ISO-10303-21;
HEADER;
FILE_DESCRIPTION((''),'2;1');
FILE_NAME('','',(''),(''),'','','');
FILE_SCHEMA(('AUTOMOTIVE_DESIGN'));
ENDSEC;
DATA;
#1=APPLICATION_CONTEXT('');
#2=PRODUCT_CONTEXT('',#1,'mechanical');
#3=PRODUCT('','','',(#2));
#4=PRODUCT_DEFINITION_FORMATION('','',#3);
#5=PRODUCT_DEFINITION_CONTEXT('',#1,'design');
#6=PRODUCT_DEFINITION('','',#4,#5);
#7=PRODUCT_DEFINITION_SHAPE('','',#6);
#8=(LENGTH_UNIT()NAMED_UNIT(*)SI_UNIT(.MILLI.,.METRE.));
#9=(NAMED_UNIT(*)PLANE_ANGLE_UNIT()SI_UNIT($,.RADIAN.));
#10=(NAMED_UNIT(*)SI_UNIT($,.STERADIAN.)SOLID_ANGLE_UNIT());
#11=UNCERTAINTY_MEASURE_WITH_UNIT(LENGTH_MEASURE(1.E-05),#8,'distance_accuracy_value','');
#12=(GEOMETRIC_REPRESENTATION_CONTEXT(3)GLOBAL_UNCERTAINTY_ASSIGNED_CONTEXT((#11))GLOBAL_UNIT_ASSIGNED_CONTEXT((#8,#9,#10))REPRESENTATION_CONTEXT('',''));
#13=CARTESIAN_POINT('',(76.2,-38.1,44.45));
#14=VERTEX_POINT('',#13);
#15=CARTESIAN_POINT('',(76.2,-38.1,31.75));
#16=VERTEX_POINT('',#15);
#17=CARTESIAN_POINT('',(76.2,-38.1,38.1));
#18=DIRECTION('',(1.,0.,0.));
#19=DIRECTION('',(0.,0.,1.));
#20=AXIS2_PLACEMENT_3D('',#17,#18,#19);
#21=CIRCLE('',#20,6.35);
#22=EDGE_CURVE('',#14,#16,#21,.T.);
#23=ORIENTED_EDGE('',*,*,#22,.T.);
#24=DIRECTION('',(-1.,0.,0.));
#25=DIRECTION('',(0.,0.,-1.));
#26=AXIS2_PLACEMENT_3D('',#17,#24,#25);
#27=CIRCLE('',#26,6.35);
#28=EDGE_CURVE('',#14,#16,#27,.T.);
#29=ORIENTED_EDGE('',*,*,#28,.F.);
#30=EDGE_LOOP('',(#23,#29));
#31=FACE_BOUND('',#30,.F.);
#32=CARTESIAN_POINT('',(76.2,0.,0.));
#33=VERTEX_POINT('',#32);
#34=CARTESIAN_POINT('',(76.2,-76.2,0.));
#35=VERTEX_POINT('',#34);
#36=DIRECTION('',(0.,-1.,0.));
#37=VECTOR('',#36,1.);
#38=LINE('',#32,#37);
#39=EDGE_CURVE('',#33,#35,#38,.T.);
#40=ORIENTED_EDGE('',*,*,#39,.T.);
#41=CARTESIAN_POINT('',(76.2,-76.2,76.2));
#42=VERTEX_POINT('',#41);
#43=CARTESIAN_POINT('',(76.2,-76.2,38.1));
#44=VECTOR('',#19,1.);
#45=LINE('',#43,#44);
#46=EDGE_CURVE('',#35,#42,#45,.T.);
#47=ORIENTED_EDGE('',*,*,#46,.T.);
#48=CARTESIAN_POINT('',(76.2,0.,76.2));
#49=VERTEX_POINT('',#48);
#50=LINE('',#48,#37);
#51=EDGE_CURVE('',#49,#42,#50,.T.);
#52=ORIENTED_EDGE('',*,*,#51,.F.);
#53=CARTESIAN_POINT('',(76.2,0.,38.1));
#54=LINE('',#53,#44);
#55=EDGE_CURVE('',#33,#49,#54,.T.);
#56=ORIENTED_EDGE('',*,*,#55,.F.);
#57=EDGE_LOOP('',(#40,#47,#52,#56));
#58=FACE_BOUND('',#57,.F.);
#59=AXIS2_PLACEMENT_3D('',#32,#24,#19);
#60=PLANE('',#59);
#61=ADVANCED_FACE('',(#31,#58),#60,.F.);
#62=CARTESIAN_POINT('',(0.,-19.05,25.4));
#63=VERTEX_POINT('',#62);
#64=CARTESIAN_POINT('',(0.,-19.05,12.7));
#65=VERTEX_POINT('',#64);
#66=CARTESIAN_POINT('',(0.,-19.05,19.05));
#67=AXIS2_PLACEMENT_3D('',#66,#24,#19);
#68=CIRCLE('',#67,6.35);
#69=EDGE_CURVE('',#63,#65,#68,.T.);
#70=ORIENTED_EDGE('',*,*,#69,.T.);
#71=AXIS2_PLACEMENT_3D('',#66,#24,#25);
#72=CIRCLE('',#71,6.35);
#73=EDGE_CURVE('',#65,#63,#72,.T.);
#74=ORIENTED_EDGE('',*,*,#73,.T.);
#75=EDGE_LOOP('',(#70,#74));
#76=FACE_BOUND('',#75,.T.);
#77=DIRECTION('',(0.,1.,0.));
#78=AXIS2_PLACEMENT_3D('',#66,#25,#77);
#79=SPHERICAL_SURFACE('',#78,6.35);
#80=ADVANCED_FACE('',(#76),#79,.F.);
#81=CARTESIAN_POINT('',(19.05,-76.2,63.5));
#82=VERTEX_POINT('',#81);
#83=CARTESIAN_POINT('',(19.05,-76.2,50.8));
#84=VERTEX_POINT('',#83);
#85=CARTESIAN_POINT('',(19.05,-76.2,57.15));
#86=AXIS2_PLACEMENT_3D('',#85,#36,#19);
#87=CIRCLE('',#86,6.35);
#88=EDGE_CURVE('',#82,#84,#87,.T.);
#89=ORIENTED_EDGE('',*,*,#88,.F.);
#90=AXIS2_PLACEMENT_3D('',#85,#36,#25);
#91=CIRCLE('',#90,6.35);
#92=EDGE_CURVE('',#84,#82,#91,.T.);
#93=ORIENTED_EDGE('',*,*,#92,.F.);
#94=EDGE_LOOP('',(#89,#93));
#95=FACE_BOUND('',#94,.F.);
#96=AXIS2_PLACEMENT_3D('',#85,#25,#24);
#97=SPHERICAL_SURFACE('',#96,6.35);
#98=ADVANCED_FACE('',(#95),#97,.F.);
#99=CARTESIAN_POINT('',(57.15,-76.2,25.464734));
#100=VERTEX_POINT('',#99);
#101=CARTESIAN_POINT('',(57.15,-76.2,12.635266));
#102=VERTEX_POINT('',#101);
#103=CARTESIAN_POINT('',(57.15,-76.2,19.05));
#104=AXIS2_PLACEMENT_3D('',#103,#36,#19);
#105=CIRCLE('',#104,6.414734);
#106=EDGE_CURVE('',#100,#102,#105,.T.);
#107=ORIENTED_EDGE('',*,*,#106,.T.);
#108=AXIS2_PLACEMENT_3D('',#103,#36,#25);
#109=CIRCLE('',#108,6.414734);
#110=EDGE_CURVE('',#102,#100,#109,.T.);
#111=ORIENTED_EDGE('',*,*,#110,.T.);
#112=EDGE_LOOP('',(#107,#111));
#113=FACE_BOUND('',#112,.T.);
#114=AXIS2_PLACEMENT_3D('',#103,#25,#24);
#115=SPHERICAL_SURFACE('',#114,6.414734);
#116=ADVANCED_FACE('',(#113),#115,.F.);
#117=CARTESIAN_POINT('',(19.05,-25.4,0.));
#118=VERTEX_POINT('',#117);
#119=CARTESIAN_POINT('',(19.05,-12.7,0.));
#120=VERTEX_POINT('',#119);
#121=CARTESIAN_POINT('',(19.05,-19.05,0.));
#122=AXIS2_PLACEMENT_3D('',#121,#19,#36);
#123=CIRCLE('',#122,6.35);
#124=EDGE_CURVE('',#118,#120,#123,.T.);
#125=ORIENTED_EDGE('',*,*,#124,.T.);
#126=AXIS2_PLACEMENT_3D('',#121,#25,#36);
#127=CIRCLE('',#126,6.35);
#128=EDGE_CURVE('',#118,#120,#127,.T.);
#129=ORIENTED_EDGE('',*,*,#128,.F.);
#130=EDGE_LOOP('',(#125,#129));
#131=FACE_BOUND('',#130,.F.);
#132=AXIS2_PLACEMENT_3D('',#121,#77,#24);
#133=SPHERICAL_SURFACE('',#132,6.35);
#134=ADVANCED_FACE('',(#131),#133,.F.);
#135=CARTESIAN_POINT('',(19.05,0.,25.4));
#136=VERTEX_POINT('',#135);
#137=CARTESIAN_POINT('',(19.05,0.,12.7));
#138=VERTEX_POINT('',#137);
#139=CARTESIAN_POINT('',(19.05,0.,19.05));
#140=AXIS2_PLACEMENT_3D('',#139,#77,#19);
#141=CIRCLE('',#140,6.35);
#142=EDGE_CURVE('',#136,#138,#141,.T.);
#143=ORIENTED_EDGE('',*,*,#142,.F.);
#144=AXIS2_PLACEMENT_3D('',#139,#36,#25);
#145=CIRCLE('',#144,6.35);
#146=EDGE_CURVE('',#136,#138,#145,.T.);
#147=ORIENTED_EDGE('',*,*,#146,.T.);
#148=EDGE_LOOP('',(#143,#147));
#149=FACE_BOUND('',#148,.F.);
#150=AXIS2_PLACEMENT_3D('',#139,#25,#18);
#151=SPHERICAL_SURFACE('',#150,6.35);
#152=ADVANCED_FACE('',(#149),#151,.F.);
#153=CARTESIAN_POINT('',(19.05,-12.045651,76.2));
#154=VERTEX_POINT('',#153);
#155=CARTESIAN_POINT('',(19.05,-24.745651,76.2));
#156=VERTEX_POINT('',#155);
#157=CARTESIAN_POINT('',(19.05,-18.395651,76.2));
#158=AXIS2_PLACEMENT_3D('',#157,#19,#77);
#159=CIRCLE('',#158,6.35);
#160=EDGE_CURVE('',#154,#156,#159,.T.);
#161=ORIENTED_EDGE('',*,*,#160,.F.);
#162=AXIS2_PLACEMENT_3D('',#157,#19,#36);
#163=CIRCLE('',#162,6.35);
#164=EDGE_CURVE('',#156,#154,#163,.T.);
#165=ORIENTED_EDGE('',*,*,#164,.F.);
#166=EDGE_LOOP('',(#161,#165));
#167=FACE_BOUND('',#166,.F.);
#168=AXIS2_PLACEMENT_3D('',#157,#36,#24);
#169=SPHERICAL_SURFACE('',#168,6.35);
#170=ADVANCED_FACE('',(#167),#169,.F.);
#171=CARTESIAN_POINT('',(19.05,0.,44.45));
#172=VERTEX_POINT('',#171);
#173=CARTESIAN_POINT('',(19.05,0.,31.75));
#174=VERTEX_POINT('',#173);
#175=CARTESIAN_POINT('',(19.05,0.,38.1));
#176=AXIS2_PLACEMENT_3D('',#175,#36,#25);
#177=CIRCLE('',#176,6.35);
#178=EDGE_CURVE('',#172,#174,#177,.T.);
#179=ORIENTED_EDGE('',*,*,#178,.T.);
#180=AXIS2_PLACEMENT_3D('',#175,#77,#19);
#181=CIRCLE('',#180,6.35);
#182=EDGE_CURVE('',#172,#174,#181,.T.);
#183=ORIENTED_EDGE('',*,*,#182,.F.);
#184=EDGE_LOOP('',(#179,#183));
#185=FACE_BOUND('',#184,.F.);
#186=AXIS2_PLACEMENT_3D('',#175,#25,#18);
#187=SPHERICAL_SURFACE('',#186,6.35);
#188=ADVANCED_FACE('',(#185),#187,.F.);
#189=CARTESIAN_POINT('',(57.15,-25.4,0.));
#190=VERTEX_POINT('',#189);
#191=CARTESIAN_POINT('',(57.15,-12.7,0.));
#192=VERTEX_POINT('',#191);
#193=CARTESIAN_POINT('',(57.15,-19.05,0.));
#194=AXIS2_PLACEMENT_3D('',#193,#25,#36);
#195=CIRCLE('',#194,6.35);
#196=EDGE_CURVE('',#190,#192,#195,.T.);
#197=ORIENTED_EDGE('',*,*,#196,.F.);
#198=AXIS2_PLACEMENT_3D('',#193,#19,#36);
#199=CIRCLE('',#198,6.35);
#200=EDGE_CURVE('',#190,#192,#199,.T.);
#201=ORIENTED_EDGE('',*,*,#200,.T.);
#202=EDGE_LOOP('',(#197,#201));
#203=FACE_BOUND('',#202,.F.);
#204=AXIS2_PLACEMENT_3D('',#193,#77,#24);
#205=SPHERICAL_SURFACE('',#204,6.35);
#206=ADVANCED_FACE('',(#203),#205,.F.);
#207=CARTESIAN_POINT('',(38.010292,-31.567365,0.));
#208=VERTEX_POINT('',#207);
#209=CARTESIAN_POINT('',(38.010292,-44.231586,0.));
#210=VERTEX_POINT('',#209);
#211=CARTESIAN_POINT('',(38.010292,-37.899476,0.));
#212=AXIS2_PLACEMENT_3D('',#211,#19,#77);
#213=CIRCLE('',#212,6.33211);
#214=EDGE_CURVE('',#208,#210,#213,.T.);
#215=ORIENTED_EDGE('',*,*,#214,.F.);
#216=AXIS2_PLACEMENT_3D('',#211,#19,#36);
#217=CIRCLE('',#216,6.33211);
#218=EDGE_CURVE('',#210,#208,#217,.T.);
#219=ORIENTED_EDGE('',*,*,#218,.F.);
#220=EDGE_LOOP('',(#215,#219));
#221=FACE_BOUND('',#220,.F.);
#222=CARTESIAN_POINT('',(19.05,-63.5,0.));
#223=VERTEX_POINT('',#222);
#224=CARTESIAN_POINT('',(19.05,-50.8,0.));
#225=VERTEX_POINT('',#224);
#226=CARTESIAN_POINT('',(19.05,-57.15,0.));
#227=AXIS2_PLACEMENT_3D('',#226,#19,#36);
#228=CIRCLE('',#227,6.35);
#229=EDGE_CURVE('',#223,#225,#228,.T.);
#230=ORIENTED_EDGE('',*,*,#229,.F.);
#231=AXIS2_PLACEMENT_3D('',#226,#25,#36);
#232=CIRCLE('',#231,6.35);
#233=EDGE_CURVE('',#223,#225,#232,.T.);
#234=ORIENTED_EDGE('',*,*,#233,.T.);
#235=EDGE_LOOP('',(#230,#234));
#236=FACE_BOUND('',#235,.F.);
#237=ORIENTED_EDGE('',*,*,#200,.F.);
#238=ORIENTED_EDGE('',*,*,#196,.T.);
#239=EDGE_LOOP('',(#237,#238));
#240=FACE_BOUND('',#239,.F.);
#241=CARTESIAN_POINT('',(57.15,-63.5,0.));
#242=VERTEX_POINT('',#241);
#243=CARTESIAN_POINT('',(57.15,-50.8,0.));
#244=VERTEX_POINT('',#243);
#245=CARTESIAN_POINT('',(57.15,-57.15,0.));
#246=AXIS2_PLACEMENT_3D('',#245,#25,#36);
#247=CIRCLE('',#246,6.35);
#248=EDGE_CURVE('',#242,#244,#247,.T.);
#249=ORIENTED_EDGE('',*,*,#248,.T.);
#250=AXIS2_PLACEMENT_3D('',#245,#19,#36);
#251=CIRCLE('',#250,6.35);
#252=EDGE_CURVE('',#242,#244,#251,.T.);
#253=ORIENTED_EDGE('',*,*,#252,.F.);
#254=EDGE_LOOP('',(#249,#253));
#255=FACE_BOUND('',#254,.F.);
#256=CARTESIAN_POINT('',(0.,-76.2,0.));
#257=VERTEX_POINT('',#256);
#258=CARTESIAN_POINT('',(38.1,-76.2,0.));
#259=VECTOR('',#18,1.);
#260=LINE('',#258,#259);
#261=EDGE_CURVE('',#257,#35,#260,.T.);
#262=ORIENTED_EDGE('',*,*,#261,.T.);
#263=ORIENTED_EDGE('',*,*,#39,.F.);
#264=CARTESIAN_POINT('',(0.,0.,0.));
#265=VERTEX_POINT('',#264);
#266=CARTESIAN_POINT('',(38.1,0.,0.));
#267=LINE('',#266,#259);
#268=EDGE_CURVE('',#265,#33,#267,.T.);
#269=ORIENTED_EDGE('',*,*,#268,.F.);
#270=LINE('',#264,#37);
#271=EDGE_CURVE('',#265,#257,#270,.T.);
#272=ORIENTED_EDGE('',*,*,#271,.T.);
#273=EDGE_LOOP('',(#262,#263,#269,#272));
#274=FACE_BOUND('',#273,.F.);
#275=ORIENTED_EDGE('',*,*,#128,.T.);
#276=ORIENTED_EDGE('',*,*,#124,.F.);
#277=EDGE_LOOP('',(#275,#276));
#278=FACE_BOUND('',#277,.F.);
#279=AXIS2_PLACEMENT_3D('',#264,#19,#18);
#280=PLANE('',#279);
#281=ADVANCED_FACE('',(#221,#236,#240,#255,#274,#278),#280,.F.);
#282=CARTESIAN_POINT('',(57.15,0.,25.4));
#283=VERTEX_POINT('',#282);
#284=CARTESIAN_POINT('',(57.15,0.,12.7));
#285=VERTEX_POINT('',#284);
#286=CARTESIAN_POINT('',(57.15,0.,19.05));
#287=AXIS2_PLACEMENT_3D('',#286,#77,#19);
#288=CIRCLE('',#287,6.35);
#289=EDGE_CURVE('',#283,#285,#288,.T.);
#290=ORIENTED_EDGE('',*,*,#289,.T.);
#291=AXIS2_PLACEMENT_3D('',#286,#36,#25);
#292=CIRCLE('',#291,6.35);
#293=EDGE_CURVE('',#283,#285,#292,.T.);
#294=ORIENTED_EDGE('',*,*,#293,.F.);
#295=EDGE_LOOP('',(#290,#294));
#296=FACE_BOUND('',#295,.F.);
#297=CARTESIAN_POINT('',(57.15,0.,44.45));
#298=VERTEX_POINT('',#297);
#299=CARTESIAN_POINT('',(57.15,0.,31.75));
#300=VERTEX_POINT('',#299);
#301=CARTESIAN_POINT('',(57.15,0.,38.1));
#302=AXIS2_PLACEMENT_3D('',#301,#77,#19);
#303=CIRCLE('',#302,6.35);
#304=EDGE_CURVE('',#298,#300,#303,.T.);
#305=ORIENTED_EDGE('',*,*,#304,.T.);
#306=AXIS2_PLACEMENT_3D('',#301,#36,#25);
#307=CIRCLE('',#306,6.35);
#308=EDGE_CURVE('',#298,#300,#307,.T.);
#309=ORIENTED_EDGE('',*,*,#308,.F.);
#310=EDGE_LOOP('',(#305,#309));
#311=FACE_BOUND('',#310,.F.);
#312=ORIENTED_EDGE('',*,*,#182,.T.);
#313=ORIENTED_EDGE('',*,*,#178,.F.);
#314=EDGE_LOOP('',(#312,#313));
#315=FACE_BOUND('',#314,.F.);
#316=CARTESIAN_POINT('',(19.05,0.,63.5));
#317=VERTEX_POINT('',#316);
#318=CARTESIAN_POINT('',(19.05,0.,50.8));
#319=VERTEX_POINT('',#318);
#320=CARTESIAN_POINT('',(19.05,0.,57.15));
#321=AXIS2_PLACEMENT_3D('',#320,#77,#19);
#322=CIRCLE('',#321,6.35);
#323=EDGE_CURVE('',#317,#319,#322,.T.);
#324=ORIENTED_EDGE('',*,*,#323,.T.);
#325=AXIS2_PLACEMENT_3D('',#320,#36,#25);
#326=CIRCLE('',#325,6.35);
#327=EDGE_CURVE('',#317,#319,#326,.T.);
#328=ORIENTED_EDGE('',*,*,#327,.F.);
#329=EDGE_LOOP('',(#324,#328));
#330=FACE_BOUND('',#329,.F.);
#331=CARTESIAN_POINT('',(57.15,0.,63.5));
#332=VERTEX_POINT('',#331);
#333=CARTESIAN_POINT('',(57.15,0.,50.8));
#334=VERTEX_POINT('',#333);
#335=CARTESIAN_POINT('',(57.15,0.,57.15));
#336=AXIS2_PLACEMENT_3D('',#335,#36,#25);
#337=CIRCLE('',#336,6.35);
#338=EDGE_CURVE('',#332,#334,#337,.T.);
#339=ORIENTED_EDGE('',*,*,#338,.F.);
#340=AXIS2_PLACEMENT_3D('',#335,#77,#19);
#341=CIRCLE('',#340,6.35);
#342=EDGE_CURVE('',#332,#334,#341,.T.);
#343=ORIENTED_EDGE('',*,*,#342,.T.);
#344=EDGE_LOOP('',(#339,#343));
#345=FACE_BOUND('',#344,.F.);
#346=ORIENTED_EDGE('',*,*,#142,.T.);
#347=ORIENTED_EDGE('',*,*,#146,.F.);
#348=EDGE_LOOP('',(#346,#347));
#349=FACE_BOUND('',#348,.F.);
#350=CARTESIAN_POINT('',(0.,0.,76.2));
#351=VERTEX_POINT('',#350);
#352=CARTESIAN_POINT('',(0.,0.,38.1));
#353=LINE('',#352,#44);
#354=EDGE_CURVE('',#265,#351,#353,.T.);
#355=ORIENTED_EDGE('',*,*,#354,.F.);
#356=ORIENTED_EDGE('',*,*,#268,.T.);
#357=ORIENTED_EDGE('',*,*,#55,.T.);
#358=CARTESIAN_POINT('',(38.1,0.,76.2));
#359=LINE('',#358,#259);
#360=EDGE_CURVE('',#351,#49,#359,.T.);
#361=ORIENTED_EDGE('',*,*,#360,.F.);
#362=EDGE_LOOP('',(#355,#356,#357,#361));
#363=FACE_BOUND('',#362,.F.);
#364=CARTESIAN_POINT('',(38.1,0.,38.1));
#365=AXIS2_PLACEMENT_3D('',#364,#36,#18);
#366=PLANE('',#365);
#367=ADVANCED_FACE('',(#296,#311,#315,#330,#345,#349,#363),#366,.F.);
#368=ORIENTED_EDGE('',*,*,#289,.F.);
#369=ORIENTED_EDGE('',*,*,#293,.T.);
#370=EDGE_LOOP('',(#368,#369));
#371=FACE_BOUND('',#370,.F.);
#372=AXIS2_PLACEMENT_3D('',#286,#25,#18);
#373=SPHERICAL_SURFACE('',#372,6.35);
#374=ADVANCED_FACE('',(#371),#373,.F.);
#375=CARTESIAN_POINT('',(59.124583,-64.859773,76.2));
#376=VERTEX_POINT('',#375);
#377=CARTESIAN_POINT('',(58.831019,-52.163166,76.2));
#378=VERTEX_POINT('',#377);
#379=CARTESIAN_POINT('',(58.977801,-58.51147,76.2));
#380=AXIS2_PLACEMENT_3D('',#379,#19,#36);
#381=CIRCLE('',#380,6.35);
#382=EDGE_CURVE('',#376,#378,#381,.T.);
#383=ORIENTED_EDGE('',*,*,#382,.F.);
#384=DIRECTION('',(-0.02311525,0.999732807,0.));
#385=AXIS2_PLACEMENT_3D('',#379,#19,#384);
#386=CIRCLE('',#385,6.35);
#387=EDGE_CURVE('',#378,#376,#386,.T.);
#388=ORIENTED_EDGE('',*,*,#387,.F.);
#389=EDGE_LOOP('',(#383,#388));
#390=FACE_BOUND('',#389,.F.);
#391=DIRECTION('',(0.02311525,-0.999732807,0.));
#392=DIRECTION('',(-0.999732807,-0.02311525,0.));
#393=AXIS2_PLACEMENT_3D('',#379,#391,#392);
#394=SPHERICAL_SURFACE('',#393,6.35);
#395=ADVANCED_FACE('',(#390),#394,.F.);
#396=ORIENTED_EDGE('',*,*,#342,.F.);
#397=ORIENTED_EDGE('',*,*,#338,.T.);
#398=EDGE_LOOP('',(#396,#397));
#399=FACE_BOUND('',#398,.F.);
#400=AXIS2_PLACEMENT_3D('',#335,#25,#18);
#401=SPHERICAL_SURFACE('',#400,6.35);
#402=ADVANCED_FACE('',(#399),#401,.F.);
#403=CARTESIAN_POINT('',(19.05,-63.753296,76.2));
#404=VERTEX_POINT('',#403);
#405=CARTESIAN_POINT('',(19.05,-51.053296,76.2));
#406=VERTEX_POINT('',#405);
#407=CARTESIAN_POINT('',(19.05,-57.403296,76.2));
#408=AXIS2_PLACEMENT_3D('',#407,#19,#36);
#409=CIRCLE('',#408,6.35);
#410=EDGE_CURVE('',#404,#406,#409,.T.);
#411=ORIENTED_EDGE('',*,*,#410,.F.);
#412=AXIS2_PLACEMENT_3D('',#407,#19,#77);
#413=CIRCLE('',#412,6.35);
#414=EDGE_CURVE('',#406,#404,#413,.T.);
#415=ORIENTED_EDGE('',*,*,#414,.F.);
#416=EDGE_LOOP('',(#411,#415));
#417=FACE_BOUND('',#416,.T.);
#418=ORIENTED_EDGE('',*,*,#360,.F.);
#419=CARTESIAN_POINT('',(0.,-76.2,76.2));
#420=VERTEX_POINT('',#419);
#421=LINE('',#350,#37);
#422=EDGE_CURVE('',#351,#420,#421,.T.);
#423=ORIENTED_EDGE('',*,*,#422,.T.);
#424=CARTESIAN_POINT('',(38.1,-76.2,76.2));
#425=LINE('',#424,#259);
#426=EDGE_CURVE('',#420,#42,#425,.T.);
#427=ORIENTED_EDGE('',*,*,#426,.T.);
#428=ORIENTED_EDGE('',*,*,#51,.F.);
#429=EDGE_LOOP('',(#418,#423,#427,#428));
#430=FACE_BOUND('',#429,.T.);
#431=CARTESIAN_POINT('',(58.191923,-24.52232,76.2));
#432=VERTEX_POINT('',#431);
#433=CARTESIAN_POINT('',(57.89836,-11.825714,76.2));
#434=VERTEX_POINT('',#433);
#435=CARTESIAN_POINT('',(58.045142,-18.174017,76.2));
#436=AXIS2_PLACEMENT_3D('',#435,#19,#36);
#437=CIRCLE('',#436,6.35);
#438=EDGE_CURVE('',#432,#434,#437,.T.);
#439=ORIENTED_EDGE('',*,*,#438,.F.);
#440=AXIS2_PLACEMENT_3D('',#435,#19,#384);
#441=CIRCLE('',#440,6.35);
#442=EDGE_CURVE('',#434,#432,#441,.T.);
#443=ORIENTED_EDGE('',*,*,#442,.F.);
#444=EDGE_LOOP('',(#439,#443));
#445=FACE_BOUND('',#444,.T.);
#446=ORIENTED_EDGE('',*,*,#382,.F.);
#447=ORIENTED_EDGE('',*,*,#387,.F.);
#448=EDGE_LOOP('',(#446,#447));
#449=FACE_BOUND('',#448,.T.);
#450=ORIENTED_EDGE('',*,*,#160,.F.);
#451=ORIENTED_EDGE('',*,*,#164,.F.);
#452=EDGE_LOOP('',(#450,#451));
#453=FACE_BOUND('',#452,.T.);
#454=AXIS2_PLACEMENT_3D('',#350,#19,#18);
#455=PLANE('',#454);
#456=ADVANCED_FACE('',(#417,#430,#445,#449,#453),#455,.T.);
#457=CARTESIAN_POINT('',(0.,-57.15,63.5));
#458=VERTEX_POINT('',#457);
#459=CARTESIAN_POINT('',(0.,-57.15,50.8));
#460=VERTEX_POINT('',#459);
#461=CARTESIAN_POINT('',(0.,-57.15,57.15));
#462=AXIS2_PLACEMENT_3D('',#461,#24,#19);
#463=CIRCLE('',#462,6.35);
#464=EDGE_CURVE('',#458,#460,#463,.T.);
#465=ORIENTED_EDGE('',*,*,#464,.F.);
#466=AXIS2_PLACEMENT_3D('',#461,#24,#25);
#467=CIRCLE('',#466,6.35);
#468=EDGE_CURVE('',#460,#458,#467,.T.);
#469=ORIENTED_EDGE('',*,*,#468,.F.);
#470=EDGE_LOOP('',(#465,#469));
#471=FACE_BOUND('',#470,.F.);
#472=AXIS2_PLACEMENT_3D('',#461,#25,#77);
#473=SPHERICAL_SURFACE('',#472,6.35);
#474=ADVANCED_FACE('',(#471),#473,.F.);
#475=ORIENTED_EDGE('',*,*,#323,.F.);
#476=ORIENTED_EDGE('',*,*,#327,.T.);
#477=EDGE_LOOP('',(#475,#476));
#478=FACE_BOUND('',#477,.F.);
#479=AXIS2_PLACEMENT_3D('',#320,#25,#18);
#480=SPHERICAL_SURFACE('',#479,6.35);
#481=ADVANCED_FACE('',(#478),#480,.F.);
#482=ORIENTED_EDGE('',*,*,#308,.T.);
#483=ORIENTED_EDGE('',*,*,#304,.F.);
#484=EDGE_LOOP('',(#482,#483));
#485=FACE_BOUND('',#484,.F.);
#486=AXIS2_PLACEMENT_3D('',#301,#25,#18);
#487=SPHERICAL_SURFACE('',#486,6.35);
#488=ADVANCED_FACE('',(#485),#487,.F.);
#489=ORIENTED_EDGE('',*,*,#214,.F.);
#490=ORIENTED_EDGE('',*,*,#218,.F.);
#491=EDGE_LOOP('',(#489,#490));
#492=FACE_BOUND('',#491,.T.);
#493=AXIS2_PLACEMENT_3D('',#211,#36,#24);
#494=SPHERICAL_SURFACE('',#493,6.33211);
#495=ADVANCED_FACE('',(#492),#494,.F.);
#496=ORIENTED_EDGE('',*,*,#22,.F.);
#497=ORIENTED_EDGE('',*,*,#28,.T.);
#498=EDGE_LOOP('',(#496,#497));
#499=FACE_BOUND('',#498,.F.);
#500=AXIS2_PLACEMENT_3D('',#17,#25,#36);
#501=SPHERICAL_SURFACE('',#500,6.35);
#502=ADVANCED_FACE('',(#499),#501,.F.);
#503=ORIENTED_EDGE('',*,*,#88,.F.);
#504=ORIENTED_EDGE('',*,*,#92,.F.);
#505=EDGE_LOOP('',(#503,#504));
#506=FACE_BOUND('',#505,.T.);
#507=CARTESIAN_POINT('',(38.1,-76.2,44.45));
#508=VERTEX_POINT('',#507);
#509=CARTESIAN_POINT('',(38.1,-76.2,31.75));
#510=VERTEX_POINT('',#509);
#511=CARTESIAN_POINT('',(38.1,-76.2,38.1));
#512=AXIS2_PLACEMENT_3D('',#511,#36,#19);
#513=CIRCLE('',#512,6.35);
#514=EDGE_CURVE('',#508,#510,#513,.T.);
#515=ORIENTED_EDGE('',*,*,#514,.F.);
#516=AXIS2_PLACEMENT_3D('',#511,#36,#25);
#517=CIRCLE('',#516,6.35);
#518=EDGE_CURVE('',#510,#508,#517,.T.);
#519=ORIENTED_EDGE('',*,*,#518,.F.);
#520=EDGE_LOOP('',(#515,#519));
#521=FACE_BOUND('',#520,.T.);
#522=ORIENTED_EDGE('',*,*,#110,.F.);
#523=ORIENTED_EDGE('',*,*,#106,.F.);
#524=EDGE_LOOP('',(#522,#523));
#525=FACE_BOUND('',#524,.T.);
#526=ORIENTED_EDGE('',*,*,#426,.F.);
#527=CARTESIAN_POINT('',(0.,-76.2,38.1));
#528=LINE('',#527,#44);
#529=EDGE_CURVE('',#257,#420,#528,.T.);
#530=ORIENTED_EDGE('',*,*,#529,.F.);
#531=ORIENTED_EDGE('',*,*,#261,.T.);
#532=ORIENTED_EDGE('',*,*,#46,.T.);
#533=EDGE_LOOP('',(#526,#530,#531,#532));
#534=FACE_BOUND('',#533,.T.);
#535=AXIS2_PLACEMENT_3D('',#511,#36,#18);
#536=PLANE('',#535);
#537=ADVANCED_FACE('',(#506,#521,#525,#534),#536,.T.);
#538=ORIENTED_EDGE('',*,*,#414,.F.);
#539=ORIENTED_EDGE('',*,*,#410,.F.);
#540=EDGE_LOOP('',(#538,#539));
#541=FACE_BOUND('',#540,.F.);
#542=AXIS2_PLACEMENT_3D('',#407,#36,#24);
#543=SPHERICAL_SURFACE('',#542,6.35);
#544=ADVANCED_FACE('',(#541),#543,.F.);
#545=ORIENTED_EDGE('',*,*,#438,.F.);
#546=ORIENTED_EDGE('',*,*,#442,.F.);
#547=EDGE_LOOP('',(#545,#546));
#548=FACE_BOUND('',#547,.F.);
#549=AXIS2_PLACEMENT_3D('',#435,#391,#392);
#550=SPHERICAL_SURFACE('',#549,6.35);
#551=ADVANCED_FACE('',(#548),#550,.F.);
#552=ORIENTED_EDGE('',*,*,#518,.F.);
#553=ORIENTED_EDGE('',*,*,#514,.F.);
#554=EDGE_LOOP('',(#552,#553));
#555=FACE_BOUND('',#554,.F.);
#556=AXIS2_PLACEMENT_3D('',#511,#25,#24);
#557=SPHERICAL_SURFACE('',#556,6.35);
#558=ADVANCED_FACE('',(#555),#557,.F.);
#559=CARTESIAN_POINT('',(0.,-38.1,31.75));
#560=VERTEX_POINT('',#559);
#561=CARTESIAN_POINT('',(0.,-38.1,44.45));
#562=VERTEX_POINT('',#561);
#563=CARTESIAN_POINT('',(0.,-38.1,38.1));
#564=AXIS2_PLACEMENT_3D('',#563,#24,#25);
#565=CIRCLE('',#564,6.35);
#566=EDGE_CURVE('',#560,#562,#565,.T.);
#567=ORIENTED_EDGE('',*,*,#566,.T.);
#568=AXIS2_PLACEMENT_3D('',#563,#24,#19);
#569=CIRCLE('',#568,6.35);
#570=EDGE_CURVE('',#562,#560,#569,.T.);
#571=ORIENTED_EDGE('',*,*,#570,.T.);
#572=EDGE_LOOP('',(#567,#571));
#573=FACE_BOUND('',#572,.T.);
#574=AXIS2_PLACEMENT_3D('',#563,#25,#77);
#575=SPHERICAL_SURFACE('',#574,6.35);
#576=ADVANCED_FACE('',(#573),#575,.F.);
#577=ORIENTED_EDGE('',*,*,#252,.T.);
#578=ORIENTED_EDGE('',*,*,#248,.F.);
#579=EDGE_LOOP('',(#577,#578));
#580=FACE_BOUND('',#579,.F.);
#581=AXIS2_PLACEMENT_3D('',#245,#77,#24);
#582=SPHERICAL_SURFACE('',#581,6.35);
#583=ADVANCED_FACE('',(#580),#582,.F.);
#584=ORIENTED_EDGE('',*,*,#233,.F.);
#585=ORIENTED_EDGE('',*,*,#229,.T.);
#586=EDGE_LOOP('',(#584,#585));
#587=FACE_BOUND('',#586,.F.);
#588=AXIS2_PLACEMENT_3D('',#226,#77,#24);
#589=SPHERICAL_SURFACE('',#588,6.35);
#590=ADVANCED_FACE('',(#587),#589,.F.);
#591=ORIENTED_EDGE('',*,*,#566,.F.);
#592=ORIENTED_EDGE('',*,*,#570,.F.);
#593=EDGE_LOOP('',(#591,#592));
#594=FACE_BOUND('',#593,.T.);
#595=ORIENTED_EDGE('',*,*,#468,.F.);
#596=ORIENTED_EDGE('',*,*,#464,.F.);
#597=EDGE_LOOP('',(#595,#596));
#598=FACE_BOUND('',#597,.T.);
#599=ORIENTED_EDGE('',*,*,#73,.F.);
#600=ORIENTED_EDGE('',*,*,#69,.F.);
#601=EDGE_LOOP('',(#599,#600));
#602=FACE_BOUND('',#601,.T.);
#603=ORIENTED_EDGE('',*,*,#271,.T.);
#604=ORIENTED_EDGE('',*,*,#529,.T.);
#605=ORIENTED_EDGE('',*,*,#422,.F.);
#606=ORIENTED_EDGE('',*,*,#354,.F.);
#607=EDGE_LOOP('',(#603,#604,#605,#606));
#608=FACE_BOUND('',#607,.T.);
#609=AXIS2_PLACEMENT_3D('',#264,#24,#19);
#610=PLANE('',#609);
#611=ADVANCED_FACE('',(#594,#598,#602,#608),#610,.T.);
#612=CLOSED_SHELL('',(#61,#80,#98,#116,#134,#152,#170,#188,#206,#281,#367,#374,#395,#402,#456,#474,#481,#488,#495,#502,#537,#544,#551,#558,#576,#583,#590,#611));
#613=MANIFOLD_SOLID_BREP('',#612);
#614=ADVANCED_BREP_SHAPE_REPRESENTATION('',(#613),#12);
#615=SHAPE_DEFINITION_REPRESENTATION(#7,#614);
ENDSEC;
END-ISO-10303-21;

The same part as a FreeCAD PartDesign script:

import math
import FreeCAD as App
import Part
import Sketcher
from FreeCAD import Vector
Q = App.Units.Quantity


def add_polygon(sketch, points):
    """Adds a closed chain of lines whose ends are joined by coincident constraints."""
    first, n = sketch.GeometryCount, len(points)
    for a, b in zip(points, points[1:] + points[:1]):
        sketch.addGeometry(Part.LineSegment(App.Vector(*a, 0), App.Vector(*b, 0)), False)
    for i in range(n):
        sketch.addConstraint(Sketcher.Constraint("Coincident", first + i, 2, first + (i + 1) % n, 1))

doc = App.newDocument("Part")
body = doc.addObject("PartDesign::Body", "Body")

sketch1 = body.newObject("Sketcher::SketchObject", "Sketch")
sketch1.AttachmentSupport = (doc.getObject("XZ_Plane"), [""])
sketch1.MapMode = "FlatFace"
add_polygon(sketch1, [(0, 76), (0, 0), (76, 0), (76, 76)])
sketch1.addConstraint(Sketcher.Constraint("Vertical", 0))
sketch1.addConstraint(Sketcher.Constraint("Horizontal", 1))
sketch1.addConstraint(Sketcher.Constraint("Vertical", 2))
sketch1.addConstraint(Sketcher.Constraint("Horizontal", 3))
sketch1.addConstraint(Sketcher.Constraint("Coincident", 0, 2, -1, 1))
sketch1.addConstraint(Sketcher.Constraint("Equal", 3, 0))
sketch1.addConstraint(Sketcher.Constraint("DistanceX", 1, 1, 1, 2, Q("3 in")))
pad1 = body.newObject("PartDesign::Pad", "Pad")
pad1.Profile = sketch1
pad1.Length = Q("3 in")

sketch2 = body.newObject("Sketcher::SketchObject", "Sketch001")
sketch2.AttachmentSupport = (doc.getObject("YZ_Plane"), [""])
sketch2.MapMode = "FlatFace"
sketch2.AttachmentOffset = App.Placement(Vector(0, 0, 3 * 25.4), App.Rotation())
sketch2.addGeometry(Part.ArcOfCircle(Part.Circle(Vector(-38, 38, 0), Vector(0, 0, 1), 6), math.radians(90), math.radians(270)), False)
sketch2.addGeometry(Part.LineSegment(Vector(-38, 32, 0), Vector(-38, 44, 0)), False)
sketch2.addGeometry(Part.LineSegment(Vector(-38, 44, 0), Vector(-38, 32, 0)), True)
sketch2.addConstraint(Sketcher.Constraint("Coincident", 0, 1, 1, 2))
sketch2.addConstraint(Sketcher.Constraint("Coincident", 1, 1, 0, 2))
sketch2.addConstraint(Sketcher.Constraint("Vertical", 1))
sketch2.addConstraint(Sketcher.Constraint("Vertical", 2))
sketch2.addConstraint(Sketcher.Constraint("Coincident", 2, 1, 0, 1))
sketch2.addConstraint(Sketcher.Constraint("Equal", 1, 2))
sketch2.addConstraint(Sketcher.Constraint("Radius", 0, Q("0.25 in")))
sketch2.addConstraint(Sketcher.Constraint("DistanceX", 0, 3, -1, 1, Q("1.5 in")))
sketch2.addConstraint(Sketcher.Constraint("DistanceY", -1, 1, 0, 3, Q("1.5 in")))
sketch2.addConstraint(Sketcher.Constraint("DistanceX", 0, 1, -1, 1, Q("1.5 in")))
groove = body.newObject("PartDesign::Groove", "Groove")
groove.Profile = sketch2
groove.ReferenceAxis = (sketch2, ["Axis0"])
groove.Angle = 360

sketch3 = body.newObject("Sketcher::SketchObject", "Sketch002")
sketch3.AttachmentSupport = (doc.getObject("XY_Plane"), [""])
sketch3.MapMode = "FlatFace"
sketch3.addGeometry(Part.ArcOfCircle(Part.Circle(Vector(38, -38, 0), Vector(0, 0, 1), 6), math.radians(90), math.radians(270)), False)
sketch3.addGeometry(Part.LineSegment(Vector(38, -44, 0), Vector(38, -32, 0)), False)
sketch3.addGeometry(Part.LineSegment(Vector(38, -44, 0), Vector(38, -32, 0)), True)
sketch3.addConstraint(Sketcher.Constraint("Coincident", 0, 1, 1, 2))
sketch3.addConstraint(Sketcher.Constraint("Coincident", 1, 1, 0, 2))
sketch3.addConstraint(Sketcher.Constraint("Vertical", 1))
sketch3.addConstraint(Sketcher.Constraint("Vertical", 2))
sketch3.addConstraint(Sketcher.Constraint("Coincident", 2, 1, 1, 1))
sketch3.addConstraint(Sketcher.Constraint("Equal", 1, 2))
sketch3.addConstraint(Sketcher.Constraint("Radius", 0, 6.33211))
sketch3.addConstraint(Sketcher.Constraint("DistanceX", -1, 1, 0, 3, 38.010292))
sketch3.addConstraint(Sketcher.Constraint("DistanceX", -1, 1, 0, 1, 38.010292))
sketch3.addConstraint(Sketcher.Constraint("DistanceY", 0, 3, -1, 1, 37.899476))
groove2 = body.newObject("PartDesign::Groove", "Groove001")
groove2.Profile = sketch3
groove2.ReferenceAxis = (sketch3, ["Axis0"])
groove2.Angle = 360

sketch4 = body.newObject("Sketcher::SketchObject", "Sketch003")
sketch4.AttachmentSupport = (doc.getObject("XY_Plane"), [""])
sketch4.MapMode = "FlatFace"
sketch4.addGeometry(Part.LineSegment(Vector(19, -51, 0), Vector(19, -64, 0)), False)
sketch4.addGeometry(Part.ArcOfCircle(Part.Circle(Vector(19, -57, 0), Vector(0, 0, 1), 6), math.radians(90), math.radians(270)), False)
sketch4.addGeometry(Part.LineSegment(Vector(19, -64, 0), Vector(19, -51, 0)), True)
sketch4.addConstraint(Sketcher.Constraint("Coincident", 0, 1, 1, 1))
sketch4.addConstraint(Sketcher.Constraint("Coincident", 1, 2, 0, 2))
sketch4.addConstraint(Sketcher.Constraint("Vertical", 0))
sketch4.addConstraint(Sketcher.Constraint("Vertical", 2))
sketch4.addConstraint(Sketcher.Constraint("Coincident", 2, 1, 1, 2))
sketch4.addConstraint(Sketcher.Constraint("Vertical", 1, 3, 0, 1))
sketch4.addConstraint(Sketcher.Constraint("Equal", 0, 2))
sketch4.addConstraint(Sketcher.Constraint("Radius", 1, Q("0.25 in")))
sketch4.addConstraint(Sketcher.Constraint("DistanceY", 0, 1, -1, 1, Q("2 in")))
sketch4.addConstraint(Sketcher.Constraint("DistanceX", -1, 1, 1, 3, Q("0.75 in")))
groove3 = body.newObject("PartDesign::Groove", "Groove002")
groove3.Profile = sketch4
groove3.ReferenceAxis = (sketch4, ["Axis0"])
groove3.Angle = 360

sketch5 = body.newObject("Sketcher::SketchObject", "Sketch004")
sketch5.AttachmentSupport = (doc.getObject("XY_Plane"), [""])
sketch5.MapMode = "FlatFace"
sketch5.addGeometry(Part.LineSegment(Vector(57, -51, 0), Vector(57, -64, 0)), False)
sketch5.addGeometry(Part.ArcOfCircle(Part.Circle(Vector(57, -57, 0), Vector(0, 0, 1), 6), math.radians(90), math.radians(270)), False)
sketch5.addGeometry(Part.LineSegment(Vector(57, -64, 0), Vector(57, -51, 0)), True)
sketch5.addConstraint(Sketcher.Constraint("Coincident", 0, 1, 1, 1))
sketch5.addConstraint(Sketcher.Constraint("Coincident", 1, 2, 0, 2))
sketch5.addConstraint(Sketcher.Constraint("Vertical", 0))
sketch5.addConstraint(Sketcher.Constraint("Vertical", 2))
sketch5.addConstraint(Sketcher.Constraint("Coincident", 2, 1, 1, 2))
sketch5.addConstraint(Sketcher.Constraint("Vertical", 1, 3, 0, 1))
sketch5.addConstraint(Sketcher.Constraint("Equal", 0, 2))
sketch5.addConstraint(Sketcher.Constraint("Radius", 1, Q("0.25 in")))
sketch5.addConstraint(Sketcher.Constraint("DistanceY", 0, 1, -1, 1, Q("2 in")))
sketch5.addConstraint(Sketcher.Constraint("DistanceX", -1, 1, 1, 3, Q("2.25 in")))
groove4 = body.newObject("PartDesign::Groove", "Groove003")
groove4.Profile = sketch5
groove4.ReferenceAxis = (sketch5, ["Axis0"])
groove4.Angle = 360

sketch6 = body.newObject("Sketcher::SketchObject", "Sketch005")
sketch6.AttachmentSupport = (doc.getObject("XY_Plane"), [""])
sketch6.MapMode = "FlatFace"
sketch6.addGeometry(Part.LineSegment(Vector(57, -13, 0), Vector(57, -25, 0)), False)
sketch6.addGeometry(Part.ArcOfCircle(Part.Circle(Vector(57, -19, 0), Vector(0, 0, 1), 6), math.radians(90), math.radians(270)), False)
sketch6.addGeometry(Part.LineSegment(Vector(57, -25, 0), Vector(57, -13, 0)), True)
sketch6.addConstraint(Sketcher.Constraint("Coincident", 0, 1, 1, 1))
sketch6.addConstraint(Sketcher.Constraint("Coincident", 1, 2, 0, 2))
sketch6.addConstraint(Sketcher.Constraint("Vertical", 0))
sketch6.addConstraint(Sketcher.Constraint("Vertical", 2))
sketch6.addConstraint(Sketcher.Constraint("Coincident", 2, 1, 1, 2))
sketch6.addConstraint(Sketcher.Constraint("Vertical", 1, 3, 0, 1))
sketch6.addConstraint(Sketcher.Constraint("Equal", 0, 2))
sketch6.addConstraint(Sketcher.Constraint("Radius", 1, Q("0.25 in")))
sketch6.addConstraint(Sketcher.Constraint("DistanceY", 1, 2, -1, 1, Q("1 in")))
sketch6.addConstraint(Sketcher.Constraint("DistanceX", -1, 1, 1, 3, Q("2.25 in")))
groove5 = body.newObject("PartDesign::Groove", "Groove004")
groove5.Profile = sketch6
groove5.ReferenceAxis = (sketch6, ["Axis0"])
groove5.Angle = 360

sketch7 = body.newObject("Sketcher::SketchObject", "Sketch006")
sketch7.AttachmentSupport = (doc.getObject("XY_Plane"), [""])
sketch7.MapMode = "FlatFace"
sketch7.addGeometry(Part.LineSegment(Vector(19, -13, 0), Vector(19, -25, 0)), False)
sketch7.addGeometry(Part.ArcOfCircle(Part.Circle(Vector(19, -19, 0), Vector(0, 0, 1), 6), math.radians(90), math.radians(270)), False)
sketch7.addGeometry(Part.LineSegment(Vector(19, -25, 0), Vector(19, -13, 0)), True)
sketch7.addConstraint(Sketcher.Constraint("Coincident", 0, 1, 1, 1))
sketch7.addConstraint(Sketcher.Constraint("Coincident", 1, 2, 0, 2))
sketch7.addConstraint(Sketcher.Constraint("Vertical", 0))
sketch7.addConstraint(Sketcher.Constraint("Vertical", 2))
sketch7.addConstraint(Sketcher.Constraint("Coincident", 2, 1, 1, 2))
sketch7.addConstraint(Sketcher.Constraint("Vertical", 1, 3, 0, 1))
sketch7.addConstraint(Sketcher.Constraint("Equal", 0, 2))
sketch7.addConstraint(Sketcher.Constraint("Radius", 1, Q("0.25 in")))
sketch7.addConstraint(Sketcher.Constraint("DistanceY", 1, 2, -1, 1, Q("1 in")))
sketch7.addConstraint(Sketcher.Constraint("DistanceX", -1, 1, 1, 3, Q("0.75 in")))
groove6 = body.newObject("PartDesign::Groove", "Groove005")
groove6.Profile = sketch7
groove6.ReferenceAxis = (sketch7, ["Axis0"])
groove6.Angle = 360

sketch8 = body.newObject("Sketcher::SketchObject", "Sketch007")
sketch8.AttachmentSupport = (doc.getObject("XZ_Plane"), [""])
sketch8.MapMode = "FlatFace"
sketch8.AttachmentOffset = App.Placement(Vector(0, 0, 3 * 25.4), App.Rotation())
sketch8.addGeometry(Part.LineSegment(Vector(19, 51, 0), Vector(19, 64, 0)), False)
sketch8.addGeometry(Part.ArcOfCircle(Part.Circle(Vector(19, 57, 0), Vector(0, 0, 1), 6), math.radians(90), math.radians(270)), False)
sketch8.addGeometry(Part.LineSegment(Vector(19, 64, 0), Vector(19, 51, 0)), True)
sketch8.addConstraint(Sketcher.Constraint("Coincident", 0, 1, 1, 2))
sketch8.addConstraint(Sketcher.Constraint("Coincident", 1, 1, 0, 2))
sketch8.addConstraint(Sketcher.Constraint("Vertical", 0))
sketch8.addConstraint(Sketcher.Constraint("Vertical", 2))
sketch8.addConstraint(Sketcher.Constraint("Coincident", 2, 1, 1, 1))
sketch8.addConstraint(Sketcher.Constraint("Vertical", 1, 3, 0, 1))
sketch8.addConstraint(Sketcher.Constraint("Equal", 0, 2))
sketch8.addConstraint(Sketcher.Constraint("Radius", 1, Q("0.25 in")))
sketch8.addConstraint(Sketcher.Constraint("DistanceY", -1, 1, 0, 1, Q("2 in")))
sketch8.addConstraint(Sketcher.Constraint("DistanceX", -1, 1, 1, 3, Q("0.75 in")))
groove7 = body.newObject("PartDesign::Groove", "Groove006")
groove7.Profile = sketch8
groove7.ReferenceAxis = (sketch8, ["Axis0"])
groove7.Angle = 360

sketch9 = body.newObject("Sketcher::SketchObject", "Sketch008")
sketch9.AttachmentSupport = (doc.getObject("XZ_Plane"), [""])
sketch9.MapMode = "FlatFace"
sketch9.AttachmentOffset = App.Placement(Vector(0, 0, 3 * 25.4), App.Rotation())
sketch9.addGeometry(Part.LineSegment(Vector(38, 32, 0), Vector(38, 44, 0)), False)
sketch9.addGeometry(Part.ArcOfCircle(Part.Circle(Vector(38, 38, 0), Vector(0, 0, 1), 6), math.radians(90), math.radians(270)), False)
sketch9.addGeometry(Part.LineSegment(Vector(38, 44, 0), Vector(38, 32, 0)), True)
sketch9.addConstraint(Sketcher.Constraint("Coincident", 0, 1, 1, 2))
sketch9.addConstraint(Sketcher.Constraint("Coincident", 1, 1, 0, 2))
sketch9.addConstraint(Sketcher.Constraint("Vertical", 0))
sketch9.addConstraint(Sketcher.Constraint("Vertical", 2))
sketch9.addConstraint(Sketcher.Constraint("Coincident", 2, 1, 1, 1))
sketch9.addConstraint(Sketcher.Constraint("Vertical", 1, 3, 0, 1))
sketch9.addConstraint(Sketcher.Constraint("Equal", 0, 2))
sketch9.addConstraint(Sketcher.Constraint("Radius", 1, Q("0.25 in")))
sketch9.addConstraint(Sketcher.Constraint("DistanceX", -1, 1, 1, 3, Q("1.5 in")))
sketch9.addConstraint(Sketcher.Constraint("DistanceY", -1, 1, 1, 3, Q("1.5 in")))
groove8 = body.newObject("PartDesign::Groove", "Groove007")
groove8.Profile = sketch9
groove8.ReferenceAxis = (sketch9, ["Axis0"])
groove8.Angle = 360

sketch10 = body.newObject("Sketcher::SketchObject", "Sketch009")
sketch10.AttachmentSupport = (doc.getObject("XZ_Plane"), [""])
sketch10.MapMode = "FlatFace"
sketch10.AttachmentOffset = App.Placement(Vector(0, 0, 3 * 25.4), App.Rotation())
sketch10.addGeometry(Part.ArcOfCircle(Part.Circle(Vector(57, 19, 0), Vector(0, 0, 1), 6), math.radians(90), math.radians(270)), False)
sketch10.addGeometry(Part.LineSegment(Vector(57, 13, 0), Vector(57, 25, 0)), False)
sketch10.addGeometry(Part.LineSegment(Vector(57, 13, 0), Vector(57, 25, 0)), True)
sketch10.addConstraint(Sketcher.Constraint("Coincident", 0, 1, 1, 2))
sketch10.addConstraint(Sketcher.Constraint("Coincident", 1, 1, 0, 2))
sketch10.addConstraint(Sketcher.Constraint("Vertical", 1))
sketch10.addConstraint(Sketcher.Constraint("Vertical", 2))
sketch10.addConstraint(Sketcher.Constraint("Coincident", 2, 1, 1, 1))
sketch10.addConstraint(Sketcher.Constraint("Equal", 1, 2))
sketch10.addConstraint(Sketcher.Constraint("DistanceX", -1, 1, 0, 3, Q("2.25 in")))
sketch10.addConstraint(Sketcher.Constraint("DistanceY", -1, 1, 0, 3, Q("0.75 in")))
sketch10.addConstraint(Sketcher.Constraint("DistanceX", -1, 1, 0, 1, Q("2.25 in")))
sketch10.addConstraint(Sketcher.Constraint("Radius", 0, 6.414734))
groove9 = body.newObject("PartDesign::Groove", "Groove008")
groove9.Profile = sketch10
groove9.ReferenceAxis = (sketch10, ["Axis0"])
groove9.Angle = 360

sketch11 = body.newObject("Sketcher::SketchObject", "Sketch010")
sketch11.AttachmentSupport = (doc.getObject("XY_Plane"), [""])
sketch11.MapMode = "FlatFace"
sketch11.AttachmentOffset = App.Placement(Vector(0, 0, 3 * 25.4), App.Rotation())
sketch11.addGeometry(Part.LineSegment(Vector(19, -64, 0), Vector(19, -51, 0)), False)
sketch11.addGeometry(Part.ArcOfCircle(Part.Circle(Vector(19, -57, 0), Vector(0, 0, 1), 6), math.radians(90), math.radians(270)), False)
sketch11.addGeometry(Part.LineSegment(Vector(19, -25, 0), Vector(19, -12, 0)), False)
sketch11.addGeometry(Part.ArcOfCircle(Part.Circle(Vector(19, -18, 0), Vector(0, 0, 1), 6), math.radians(90), math.radians(270)), False)
sketch11.addGeometry(Part.LineSegment(Vector(19, -12, 0), Vector(19, -64, 0)), True)
sketch11.addConstraint(Sketcher.Constraint("Coincident", 0, 1, 1, 2))
sketch11.addConstraint(Sketcher.Constraint("Coincident", 1, 1, 0, 2))
sketch11.addConstraint(Sketcher.Constraint("Coincident", 2, 1, 3, 2))
sketch11.addConstraint(Sketcher.Constraint("Coincident", 3, 1, 2, 2))
sketch11.addConstraint(Sketcher.Constraint("Vertical", 0))
sketch11.addConstraint(Sketcher.Constraint("Vertical", 2))
sketch11.addConstraint(Sketcher.Constraint("Vertical", 4))
sketch11.addConstraint(Sketcher.Constraint("Coincident", 4, 1, 3, 1))
sketch11.addConstraint(Sketcher.Constraint("Coincident", 4, 2, 0, 1))
sketch11.addConstraint(Sketcher.Constraint("Equal", 1, 3))
sketch11.addConstraint(Sketcher.Constraint("Vertical", 1, 3, 3, 3))
sketch11.addConstraint(Sketcher.Constraint("Vertical", 3, 3, 0, 1))
sketch11.addConstraint(Sketcher.Constraint("Radius", 1, Q("0.25 in")))
sketch11.addConstraint(Sketcher.Constraint("DistanceX", -1, 1, 1, 3, Q("0.75 in")))
sketch11.addConstraint(Sketcher.Constraint("DistanceY", 4, 2, 4, 1, 51.707645))
sketch11.addConstraint(Sketcher.Constraint("DistanceY", 3, 3, -1, 1, 18.395651))
groove10 = body.newObject("PartDesign::Groove", "Groove009")
groove10.Profile = sketch11
groove10.ReferenceAxis = (sketch11, ["Axis0"])
groove10.Angle = 360

sketch12 = body.newObject("Sketcher::SketchObject", "Sketch011")
sketch12.AttachmentSupport = (doc.getObject("XY_Plane"), [""])
sketch12.MapMode = "FlatFace"
sketch12.AttachmentOffset = App.Placement(Vector(0, 0, 3 * 25.4), App.Rotation())
sketch12.addGeometry(Part.LineSegment(Vector(59, -65, 0), Vector(59, -52, 0)), False)
sketch12.addGeometry(Part.ArcOfCircle(Part.Circle(Vector(59, -59, 0), Vector(0, 0, 1), 6), math.radians(91), math.radians(271)), False)
sketch12.addGeometry(Part.LineSegment(Vector(58, -25, 0), Vector(58, -12, 0)), False)
sketch12.addGeometry(Part.ArcOfCircle(Part.Circle(Vector(58, -18, 0), Vector(0, 0, 1), 6), math.radians(91), math.radians(271)), False)
sketch12.addGeometry(Part.LineSegment(Vector(58, -12, 0), Vector(59, -65, 0)), True)
sketch12.addConstraint(Sketcher.Constraint("Coincident", 0, 1, 1, 2))
sketch12.addConstraint(Sketcher.Constraint("Coincident", 1, 1, 0, 2))
sketch12.addConstraint(Sketcher.Constraint("Coincident", 2, 1, 3, 2))
sketch12.addConstraint(Sketcher.Constraint("Coincident", 3, 1, 2, 2))
sketch12.addConstraint(Sketcher.Constraint("Coincident", 4, 1, 3, 1))
sketch12.addConstraint(Sketcher.Constraint("Coincident", 4, 2, 0, 1))
sketch12.addConstraint(Sketcher.Constraint("Equal", 1, 3))
sketch12.addConstraint(Sketcher.Constraint("Parallel", 0, 2))
sketch12.addConstraint(Sketcher.Constraint("Parallel", 2, 4))
sketch12.addConstraint(Sketcher.Constraint("Radius", 1, Q("0.25 in")))
sketch12.addConstraint(Sketcher.Constraint("DistanceX", -1, 1, 1, 3, 58.977801))
sketch12.addConstraint(Sketcher.Constraint("DistanceY", 1, 3, -1, 1, 58.51147))
sketch12.addConstraint(Sketcher.Constraint("DistanceX", -1, 1, 3, 3, 58.045142))
sketch12.addConstraint(Sketcher.Constraint("DistanceX", -1, 1, 1, 1, 58.831019))
sketch12.addConstraint(Sketcher.Constraint("DistanceY", 2, 1, -1, 1, 24.52232))
sketch12.addConstraint(Sketcher.Constraint("DistanceX", -1, 1, 3, 1, 57.89836))
groove11 = body.newObject("PartDesign::Groove", "Groove010")
groove11.Profile = sketch12
groove11.ReferenceAxis = (sketch12, ["Axis0"])
groove11.Angle = 360

sketch13 = body.newObject("Sketcher::SketchObject", "Sketch012")
sketch13.AttachmentSupport = (doc.getObject("XZ_Plane"), [""])
sketch13.MapMode = "FlatFace"
sketch13.addGeometry(Part.LineSegment(Vector(57, 13, 0), Vector(57, 25, 0)), False)
sketch13.addGeometry(Part.ArcOfCircle(Part.Circle(Vector(57, 19, 0), Vector(0, 0, 1), 6), math.radians(-90), math.radians(90)), False)
sketch13.addGeometry(Part.LineSegment(Vector(57, 32, 0), Vector(57, 44, 0)), False)
sketch13.addGeometry(Part.ArcOfCircle(Part.Circle(Vector(57, 38, 0), Vector(0, 0, 1), 6), math.radians(-90), math.radians(90)), False)
sketch13.addGeometry(Part.LineSegment(Vector(57, 51, 0), Vector(57, 64, 0)), False)
sketch13.addGeometry(Part.ArcOfCircle(Part.Circle(Vector(57, 57, 0), Vector(0, 0, 1), 6), math.radians(-90), math.radians(90)), False)
sketch13.addGeometry(Part.LineSegment(Vector(57, 64, 0), Vector(57, 13, 0)), True)
sketch13.addConstraint(Sketcher.Constraint("Coincident", 0, 1, 1, 1))
sketch13.addConstraint(Sketcher.Constraint("Coincident", 1, 2, 0, 2))
sketch13.addConstraint(Sketcher.Constraint("Coincident", 2, 1, 3, 1))
sketch13.addConstraint(Sketcher.Constraint("Coincident", 3, 2, 2, 2))
sketch13.addConstraint(Sketcher.Constraint("Coincident", 4, 1, 5, 1))
sketch13.addConstraint(Sketcher.Constraint("Coincident", 5, 2, 4, 2))
sketch13.addConstraint(Sketcher.Constraint("Vertical", 0))
sketch13.addConstraint(Sketcher.Constraint("Vertical", 2))
sketch13.addConstraint(Sketcher.Constraint("Vertical", 4))
sketch13.addConstraint(Sketcher.Constraint("Vertical", 6))
sketch13.addConstraint(Sketcher.Constraint("Coincident", 6, 1, 5, 2))
sketch13.addConstraint(Sketcher.Constraint("Coincident", 6, 2, 0, 1))
sketch13.addConstraint(Sketcher.Constraint("Equal", 1, 3))
sketch13.addConstraint(Sketcher.Constraint("Equal", 3, 5))
sketch13.addConstraint(Sketcher.Constraint("Vertical", 1, 3, 3, 3))
sketch13.addConstraint(Sketcher.Constraint("Vertical", 3, 3, 5, 3))
sketch13.addConstraint(Sketcher.Constraint("Vertical", 5, 3, 0, 1))
sketch13.addConstraint(Sketcher.Constraint("Vertical", 1, 2, 2, 1))
sketch13.addConstraint(Sketcher.Constraint("DistanceY", 6, 2, 6, 1, Q("2 in")))
sketch13.addConstraint(Sketcher.Constraint("Radius", 1, Q("0.25 in")))
sketch13.addConstraint(Sketcher.Constraint("DistanceY", -1, 1, 1, 2, Q("1 in")))
sketch13.addConstraint(Sketcher.Constraint("DistanceY", 0, 1, 3, 3, Q("1 in")))
sketch13.addConstraint(Sketcher.Constraint("DistanceX", -1, 1, 1, 3, Q("2.25 in")))
groove12 = body.newObject("PartDesign::Groove", "Groove011")
groove12.Profile = sketch13
groove12.ReferenceAxis = (sketch13, ["Axis0"])
groove12.Angle = 360

sketch14 = body.newObject("Sketcher::SketchObject", "Sketch013")
sketch14.AttachmentSupport = (doc.getObject("XZ_Plane"), [""])
sketch14.MapMode = "FlatFace"
sketch14.addGeometry(Part.LineSegment(Vector(19, 13, 0), Vector(19, 25, 0)), False)
sketch14.addGeometry(Part.ArcOfCircle(Part.Circle(Vector(19, 19, 0), Vector(0, 0, 1), 6), math.radians(-90), math.radians(90)), False)
sketch14.addGeometry(Part.LineSegment(Vector(19, 32, 0), Vector(19, 44, 0)), False)
sketch14.addGeometry(Part.ArcOfCircle(Part.Circle(Vector(19, 38, 0), Vector(0, 0, 1), 6), math.radians(-90), math.radians(90)), False)
sketch14.addGeometry(Part.LineSegment(Vector(19, 51, 0), Vector(19, 64, 0)), False)
sketch14.addGeometry(Part.ArcOfCircle(Part.Circle(Vector(19, 57, 0), Vector(0, 0, 1), 6), math.radians(-90), math.radians(90)), False)
sketch14.addGeometry(Part.LineSegment(Vector(19, 64, 0), Vector(19, 13, 0)), True)
sketch14.addConstraint(Sketcher.Constraint("Coincident", 0, 1, 1, 1))
sketch14.addConstraint(Sketcher.Constraint("Coincident", 1, 2, 0, 2))
sketch14.addConstraint(Sketcher.Constraint("Coincident", 2, 1, 3, 1))
sketch14.addConstraint(Sketcher.Constraint("Coincident", 3, 2, 2, 2))
sketch14.addConstraint(Sketcher.Constraint("Coincident", 4, 1, 5, 1))
sketch14.addConstraint(Sketcher.Constraint("Coincident", 5, 2, 4, 2))
sketch14.addConstraint(Sketcher.Constraint("Vertical", 0))
sketch14.addConstraint(Sketcher.Constraint("Vertical", 2))
sketch14.addConstraint(Sketcher.Constraint("Vertical", 4))
sketch14.addConstraint(Sketcher.Constraint("Vertical", 6))
sketch14.addConstraint(Sketcher.Constraint("Coincident", 6, 1, 5, 2))
sketch14.addConstraint(Sketcher.Constraint("Coincident", 6, 2, 0, 1))
sketch14.addConstraint(Sketcher.Constraint("Equal", 1, 3))
sketch14.addConstraint(Sketcher.Constraint("Equal", 3, 5))
sketch14.addConstraint(Sketcher.Constraint("Vertical", 1, 3, 3, 3))
sketch14.addConstraint(Sketcher.Constraint("Vertical", 3, 3, 5, 3))
sketch14.addConstraint(Sketcher.Constraint("Vertical", 5, 3, 0, 1))
sketch14.addConstraint(Sketcher.Constraint("Vertical", 1, 2, 2, 1))
sketch14.addConstraint(Sketcher.Constraint("DistanceY", 6, 2, 6, 1, Q("2 in")))
sketch14.addConstraint(Sketcher.Constraint("Radius", 1, Q("0.25 in")))
sketch14.addConstraint(Sketcher.Constraint("DistanceY", -1, 1, 1, 2, Q("1 in")))
sketch14.addConstraint(Sketcher.Constraint("DistanceY", 0, 1, 3, 3, Q("1 in")))
sketch14.addConstraint(Sketcher.Constraint("DistanceX", -1, 1, 1, 3, Q("0.75 in")))
groove13 = body.newObject("PartDesign::Groove", "Groove012")
groove13.Profile = sketch14
groove13.ReferenceAxis = (sketch14, ["Axis0"])
groove13.Angle = 360

sketch15 = body.newObject("Sketcher::SketchObject", "Sketch014")
sketch15.AttachmentSupport = (doc.getObject("YZ_Plane"), [""])
sketch15.MapMode = "FlatFace"
sketch15.addGeometry(Part.ArcOfCircle(Part.Circle(Vector(-38, 38, 0), Vector(0, 0, 1), 6), math.radians(-90), math.radians(90)), False)
sketch15.addGeometry(Part.LineSegment(Vector(-38, 32, 0), Vector(-38, 44, 0)), False)
sketch15.addGeometry(Part.LineSegment(Vector(-38, 32, 0), Vector(-38, 44, 0)), True)
sketch15.addConstraint(Sketcher.Constraint("Coincident", 0, 1, 1, 1))
sketch15.addConstraint(Sketcher.Constraint("Coincident", 1, 2, 0, 2))
sketch15.addConstraint(Sketcher.Constraint("Vertical", 1))
sketch15.addConstraint(Sketcher.Constraint("Vertical", 2))
sketch15.addConstraint(Sketcher.Constraint("Coincident", 2, 1, 0, 1))
sketch15.addConstraint(Sketcher.Constraint("Equal", 1, 2))
sketch15.addConstraint(Sketcher.Constraint("Radius", 0, Q("0.25 in")))
sketch15.addConstraint(Sketcher.Constraint("DistanceX", 0, 3, -1, 1, Q("1.5 in")))
sketch15.addConstraint(Sketcher.Constraint("DistanceY", -1, 1, 0, 3, Q("1.5 in")))
sketch15.addConstraint(Sketcher.Constraint("DistanceX", 0, 1, -1, 1, Q("1.5 in")))
groove14 = body.newObject("PartDesign::Groove", "Groove013")
groove14.Profile = sketch15
groove14.ReferenceAxis = (sketch15, ["Axis0"])
groove14.Angle = 360

sketch16 = body.newObject("Sketcher::SketchObject", "Sketch015")
sketch16.AttachmentSupport = (doc.getObject("YZ_Plane"), [""])
sketch16.MapMode = "FlatFace"
sketch16.addGeometry(Part.ArcOfCircle(Part.Circle(Vector(-19, 19, 0), Vector(0, 0, 1), 6), math.radians(-90), math.radians(90)), False)
sketch16.addGeometry(Part.LineSegment(Vector(-19, 13, 0), Vector(-19, 25, 0)), False)
sketch16.addGeometry(Part.LineSegment(Vector(-19, 13, 0), Vector(-19, 25, 0)), True)
sketch16.addConstraint(Sketcher.Constraint("Coincident", 0, 1, 1, 1))
sketch16.addConstraint(Sketcher.Constraint("Coincident", 1, 2, 0, 2))
sketch16.addConstraint(Sketcher.Constraint("Vertical", 1))
sketch16.addConstraint(Sketcher.Constraint("Vertical", 2))
sketch16.addConstraint(Sketcher.Constraint("Coincident", 2, 1, 0, 1))
sketch16.addConstraint(Sketcher.Constraint("Equal", 1, 2))
sketch16.addConstraint(Sketcher.Constraint("Radius", 0, Q("0.25 in")))
sketch16.addConstraint(Sketcher.Constraint("DistanceY", -1, 1, 1, 2, Q("1 in")))
sketch16.addConstraint(Sketcher.Constraint("DistanceX", 0, 3, -1, 1, Q("0.75 in")))
sketch16.addConstraint(Sketcher.Constraint("DistanceX", 0, 1, -1, 1, Q("0.75 in")))
groove15 = body.newObject("PartDesign::Groove", "Groove014")
groove15.Profile = sketch16
groove15.ReferenceAxis = (sketch16, ["Axis0"])
groove15.Angle = 360

sketch17 = body.newObject("Sketcher::SketchObject", "Sketch016")
sketch17.AttachmentSupport = (doc.getObject("YZ_Plane"), [""])
sketch17.MapMode = "FlatFace"
sketch17.addGeometry(Part.LineSegment(Vector(-57, 51, 0), Vector(-57, 64, 0)), False)
sketch17.addGeometry(Part.ArcOfCircle(Part.Circle(Vector(-57, 57, 0), Vector(0, 0, 1), 6), math.radians(-90), math.radians(90)), False)
sketch17.addGeometry(Part.LineSegment(Vector(-57, 64, 0), Vector(-57, 51, 0)), True)
sketch17.addConstraint(Sketcher.Constraint("Coincident", 0, 1, 1, 1))
sketch17.addConstraint(Sketcher.Constraint("Coincident", 1, 2, 0, 2))
sketch17.addConstraint(Sketcher.Constraint("Vertical", 0))
sketch17.addConstraint(Sketcher.Constraint("Vertical", 2))
sketch17.addConstraint(Sketcher.Constraint("Coincident", 2, 1, 1, 2))
sketch17.addConstraint(Sketcher.Constraint("Vertical", 1, 3, 0, 1))
sketch17.addConstraint(Sketcher.Constraint("Equal", 0, 2))
sketch17.addConstraint(Sketcher.Constraint("Radius", 1, Q("0.25 in")))
sketch17.addConstraint(Sketcher.Constraint("DistanceY", -1, 1, 0, 1, Q("2 in")))
sketch17.addConstraint(Sketcher.Constraint("DistanceX", 1, 3, -1, 1, Q("2.25 in")))
groove16 = body.newObject("PartDesign::Groove", "Groove015")
groove16.Profile = sketch17
groove16.ReferenceAxis = (sketch17, ["Axis0"])
groove16.Angle = 360

doc.recompute()
